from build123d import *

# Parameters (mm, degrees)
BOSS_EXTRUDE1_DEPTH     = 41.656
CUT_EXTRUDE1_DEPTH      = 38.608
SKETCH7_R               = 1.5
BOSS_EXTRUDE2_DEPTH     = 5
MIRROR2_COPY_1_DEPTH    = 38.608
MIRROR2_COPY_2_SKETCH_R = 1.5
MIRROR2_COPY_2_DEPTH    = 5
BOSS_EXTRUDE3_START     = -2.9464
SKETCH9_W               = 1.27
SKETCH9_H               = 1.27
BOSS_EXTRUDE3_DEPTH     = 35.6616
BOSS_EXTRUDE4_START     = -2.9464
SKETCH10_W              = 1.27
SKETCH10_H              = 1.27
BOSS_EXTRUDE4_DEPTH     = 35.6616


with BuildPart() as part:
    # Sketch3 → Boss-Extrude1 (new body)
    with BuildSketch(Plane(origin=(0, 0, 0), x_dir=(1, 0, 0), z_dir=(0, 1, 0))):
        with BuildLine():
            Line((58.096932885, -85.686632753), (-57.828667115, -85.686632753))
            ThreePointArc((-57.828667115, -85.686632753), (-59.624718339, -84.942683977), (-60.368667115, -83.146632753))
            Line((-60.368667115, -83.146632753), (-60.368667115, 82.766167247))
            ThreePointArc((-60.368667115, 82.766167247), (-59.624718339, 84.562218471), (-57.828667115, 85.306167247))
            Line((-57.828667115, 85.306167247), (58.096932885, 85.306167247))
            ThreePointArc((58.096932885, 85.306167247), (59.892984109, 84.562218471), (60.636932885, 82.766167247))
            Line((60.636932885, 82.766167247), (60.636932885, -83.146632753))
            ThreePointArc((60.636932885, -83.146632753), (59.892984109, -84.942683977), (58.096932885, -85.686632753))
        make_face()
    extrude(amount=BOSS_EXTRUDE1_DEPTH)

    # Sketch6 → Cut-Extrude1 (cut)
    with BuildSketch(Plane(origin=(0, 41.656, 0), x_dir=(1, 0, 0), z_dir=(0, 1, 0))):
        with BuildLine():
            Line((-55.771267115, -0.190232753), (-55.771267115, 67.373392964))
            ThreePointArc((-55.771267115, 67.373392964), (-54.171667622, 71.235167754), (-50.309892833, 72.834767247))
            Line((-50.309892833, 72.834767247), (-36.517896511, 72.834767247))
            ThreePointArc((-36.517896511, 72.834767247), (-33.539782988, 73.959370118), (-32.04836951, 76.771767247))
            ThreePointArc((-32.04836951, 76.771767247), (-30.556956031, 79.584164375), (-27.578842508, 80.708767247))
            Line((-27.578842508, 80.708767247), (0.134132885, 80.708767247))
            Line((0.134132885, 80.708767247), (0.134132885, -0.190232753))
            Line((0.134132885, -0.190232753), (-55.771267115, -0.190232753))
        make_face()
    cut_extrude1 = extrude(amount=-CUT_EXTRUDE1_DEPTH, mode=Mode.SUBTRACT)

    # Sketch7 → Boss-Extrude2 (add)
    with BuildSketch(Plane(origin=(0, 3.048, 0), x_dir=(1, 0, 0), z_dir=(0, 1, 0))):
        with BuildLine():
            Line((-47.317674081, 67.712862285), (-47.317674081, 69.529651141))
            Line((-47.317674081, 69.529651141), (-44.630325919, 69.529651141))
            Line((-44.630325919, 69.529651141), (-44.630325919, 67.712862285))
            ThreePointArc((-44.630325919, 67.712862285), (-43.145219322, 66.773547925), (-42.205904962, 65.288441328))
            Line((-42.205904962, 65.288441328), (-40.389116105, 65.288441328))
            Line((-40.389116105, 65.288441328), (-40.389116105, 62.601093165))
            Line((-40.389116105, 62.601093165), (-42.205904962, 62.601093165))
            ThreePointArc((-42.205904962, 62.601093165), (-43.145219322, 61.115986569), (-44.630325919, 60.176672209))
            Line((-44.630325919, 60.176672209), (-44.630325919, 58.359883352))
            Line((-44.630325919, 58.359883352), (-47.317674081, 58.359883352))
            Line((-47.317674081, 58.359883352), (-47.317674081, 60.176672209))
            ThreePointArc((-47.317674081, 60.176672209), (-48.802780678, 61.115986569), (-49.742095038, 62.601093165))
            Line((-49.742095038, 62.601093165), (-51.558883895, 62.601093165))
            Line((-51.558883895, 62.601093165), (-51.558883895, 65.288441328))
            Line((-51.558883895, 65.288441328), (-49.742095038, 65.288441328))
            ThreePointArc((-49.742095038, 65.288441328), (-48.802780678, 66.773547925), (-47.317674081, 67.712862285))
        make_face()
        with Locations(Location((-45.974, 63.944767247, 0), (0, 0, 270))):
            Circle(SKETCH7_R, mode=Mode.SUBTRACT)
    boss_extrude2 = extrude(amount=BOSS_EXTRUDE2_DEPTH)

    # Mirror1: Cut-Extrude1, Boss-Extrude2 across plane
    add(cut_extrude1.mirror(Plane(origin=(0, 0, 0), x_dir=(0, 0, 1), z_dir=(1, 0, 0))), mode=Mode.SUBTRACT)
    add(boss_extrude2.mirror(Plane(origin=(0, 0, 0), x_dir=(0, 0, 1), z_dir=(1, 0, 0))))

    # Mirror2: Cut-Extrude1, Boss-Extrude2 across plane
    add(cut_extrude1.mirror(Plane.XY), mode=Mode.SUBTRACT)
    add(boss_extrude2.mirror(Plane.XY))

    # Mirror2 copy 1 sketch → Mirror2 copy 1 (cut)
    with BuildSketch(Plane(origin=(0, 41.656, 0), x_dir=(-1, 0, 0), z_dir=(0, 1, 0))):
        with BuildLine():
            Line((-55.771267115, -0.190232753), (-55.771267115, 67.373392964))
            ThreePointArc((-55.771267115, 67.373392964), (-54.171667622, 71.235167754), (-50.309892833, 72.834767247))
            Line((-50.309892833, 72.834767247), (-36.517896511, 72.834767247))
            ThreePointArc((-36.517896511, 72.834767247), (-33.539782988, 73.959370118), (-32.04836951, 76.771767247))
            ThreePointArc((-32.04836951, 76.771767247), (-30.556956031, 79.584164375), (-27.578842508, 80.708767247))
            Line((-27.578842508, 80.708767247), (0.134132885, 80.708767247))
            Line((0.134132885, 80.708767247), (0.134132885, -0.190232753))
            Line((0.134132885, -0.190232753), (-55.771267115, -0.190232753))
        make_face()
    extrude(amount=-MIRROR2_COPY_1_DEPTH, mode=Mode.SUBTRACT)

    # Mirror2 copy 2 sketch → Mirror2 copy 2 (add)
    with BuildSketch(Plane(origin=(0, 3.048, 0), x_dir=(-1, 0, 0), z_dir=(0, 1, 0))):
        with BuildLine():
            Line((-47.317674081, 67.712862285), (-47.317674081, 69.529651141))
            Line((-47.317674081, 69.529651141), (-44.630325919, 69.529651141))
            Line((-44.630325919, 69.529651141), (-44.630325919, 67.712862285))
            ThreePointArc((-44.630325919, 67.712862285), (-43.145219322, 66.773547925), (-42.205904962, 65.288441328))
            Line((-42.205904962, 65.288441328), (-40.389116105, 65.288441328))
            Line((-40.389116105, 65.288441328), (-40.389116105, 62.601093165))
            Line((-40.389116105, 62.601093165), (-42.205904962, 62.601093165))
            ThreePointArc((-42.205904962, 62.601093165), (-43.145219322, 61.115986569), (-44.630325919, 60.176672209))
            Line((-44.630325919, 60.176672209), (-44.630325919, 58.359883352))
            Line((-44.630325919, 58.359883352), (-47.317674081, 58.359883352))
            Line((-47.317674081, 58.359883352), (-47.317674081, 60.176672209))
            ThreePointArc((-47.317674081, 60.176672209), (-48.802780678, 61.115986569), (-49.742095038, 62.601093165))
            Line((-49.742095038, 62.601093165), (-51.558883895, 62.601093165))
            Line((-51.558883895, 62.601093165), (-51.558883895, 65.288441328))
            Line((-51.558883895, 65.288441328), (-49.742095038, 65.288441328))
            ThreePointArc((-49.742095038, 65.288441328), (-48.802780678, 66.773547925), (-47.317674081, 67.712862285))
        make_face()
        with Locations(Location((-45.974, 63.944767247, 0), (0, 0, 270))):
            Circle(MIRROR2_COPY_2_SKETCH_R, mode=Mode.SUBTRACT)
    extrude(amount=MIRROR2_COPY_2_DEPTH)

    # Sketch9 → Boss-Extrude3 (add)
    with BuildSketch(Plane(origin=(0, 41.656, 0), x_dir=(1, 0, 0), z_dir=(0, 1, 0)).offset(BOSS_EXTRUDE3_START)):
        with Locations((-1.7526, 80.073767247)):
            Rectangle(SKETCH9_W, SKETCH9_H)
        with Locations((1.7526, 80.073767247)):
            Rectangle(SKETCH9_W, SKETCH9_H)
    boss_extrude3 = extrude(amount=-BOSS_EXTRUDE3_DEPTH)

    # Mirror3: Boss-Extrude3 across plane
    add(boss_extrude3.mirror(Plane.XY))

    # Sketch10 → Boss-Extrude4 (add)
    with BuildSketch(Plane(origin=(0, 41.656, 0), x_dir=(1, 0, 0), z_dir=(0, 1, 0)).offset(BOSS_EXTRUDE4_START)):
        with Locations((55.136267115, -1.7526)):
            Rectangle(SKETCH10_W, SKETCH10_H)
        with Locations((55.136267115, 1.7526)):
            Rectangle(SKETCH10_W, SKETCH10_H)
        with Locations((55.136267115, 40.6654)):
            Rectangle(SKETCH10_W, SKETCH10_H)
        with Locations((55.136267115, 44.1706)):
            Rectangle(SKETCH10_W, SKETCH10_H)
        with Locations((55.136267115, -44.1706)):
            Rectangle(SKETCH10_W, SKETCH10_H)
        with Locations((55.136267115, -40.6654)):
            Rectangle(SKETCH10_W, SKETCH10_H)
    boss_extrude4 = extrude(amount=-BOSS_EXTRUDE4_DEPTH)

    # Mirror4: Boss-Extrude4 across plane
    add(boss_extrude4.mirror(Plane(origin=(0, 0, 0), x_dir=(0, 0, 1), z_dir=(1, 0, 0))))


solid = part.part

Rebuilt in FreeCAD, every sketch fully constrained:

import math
import FreeCAD as App
import Part
import Sketcher

V = App.Vector
Q = App.Units.Quantity

doc = App.newDocument("Part")
body = doc.addObject("PartDesign::Body", "Body")

sketch1 = body.newObject("Sketcher::SketchObject", "Sketch")
sketch1.AttachmentSupport = (doc.getObject("XZ_Plane"), [""])
sketch1.MapMode = "FlatFace"
sketch1.addGeometry([
    Part.LineSegment(V(-57.8, 85.7, 0), V(58.1, 85.7, 0)),
    Part.ArcOfCircle(Part.Circle(V(58.1, 83.1, 0), V(0, 0, 1), 2.5), math.radians(0), math.radians(90)),
    Part.LineSegment(V(60.6, 83.1, 0), V(60.6, -82.8, 0)),
    Part.ArcOfCircle(Part.Circle(V(58.1, -82.8, 0), V(0, 0, 1), 2.5), math.radians(-90), math.radians(0)),
    Part.LineSegment(V(58.1, -85.3, 0), V(-57.8, -85.3, 0)),
    Part.ArcOfCircle(Part.Circle(V(-57.8, -82.8, 0), V(0, 0, 1), 2.5), math.radians(-180), math.radians(-90)),
    Part.LineSegment(V(-60.4, -82.8, 0), V(-60.4, 83.1, 0)),
    Part.ArcOfCircle(Part.Circle(V(-57.8, 83.1, 0), V(0, 0, 1), 2.5), math.radians(90), math.radians(180)),
], False)
sketch1.addConstraint([
    Sketcher.Constraint("Tangent", 0, 2, 1, 2),
    Sketcher.Constraint("Tangent", 1, 1, 2, 1),
    Sketcher.Constraint("Tangent", 2, 2, 3, 2),
    Sketcher.Constraint("Tangent", 3, 1, 4, 1),
    Sketcher.Constraint("Tangent", 4, 2, 5, 2),
    Sketcher.Constraint("Tangent", 5, 1, 6, 1),
    Sketcher.Constraint("Tangent", 6, 2, 7, 2),
    Sketcher.Constraint("Tangent", 7, 1, 0, 1),
    Sketcher.Constraint("Horizontal", 0),
    Sketcher.Constraint("Vertical", 2),
    Sketcher.Constraint("Horizontal", 4),
    Sketcher.Constraint("Vertical", 6),
    Sketcher.Constraint("Equal", 1, 3),
    Sketcher.Constraint("Equal", 3, 5),
    Sketcher.Constraint("Equal", 5, 7),
    Sketcher.Constraint("Radius", 1, Q("0.1 in")),
    Sketcher.Constraint("DistanceX", 0, 1, 0, 2, Q("4.564 in")),
    Sketcher.Constraint("DistanceY", 2, 2, 2, 1, Q("6.532 in")),
    Sketcher.Constraint("DistanceX", -1, 1, 1, 3, 58.096933),
    Sketcher.Constraint("DistanceY", -1, 1, 1, 3, 83.146633),
])
pad1 = body.newObject("PartDesign::Pad", "Pad")
pad1.Profile = sketch1
pad1.Length = Q("1.64 in")
pad1.Reversed = True

sketch2 = body.newObject("Sketcher::SketchObject", "Sketch001")
sketch2.AttachmentSupport = (doc.getObject("XZ_Plane"), [""])
sketch2.MapMode = "FlatFace"
sketch2.AttachmentOffset = App.Placement(V(0, 0, -1.64 * 25.4), App.Rotation())
sketch2.addGeometry([
    Part.LineSegment(V(-55.8, -67.4, 0), V(-55.8, 0.2, 0)),
    Part.LineSegment(V(-55.8, 0.2, 0), V(0.1, 0.2, 0)),
    Part.LineSegment(V(0.1, 0.2, 0), V(0.1, -80.7, 0)),
    Part.LineSegment(V(0.1, -80.7, 0), V(-27.6, -80.7, 0)),
    Part.ArcOfCircle(Part.Circle(V(-27.6, -76.2, 0), V(0, 0, 1), 4.5), math.radians(-173), math.radians(-90)),
    Part.ArcOfCircle(Part.Circle(V(-36.5, -77.3, 0), V(0, 0, 1), 4.5), math.radians(7), math.radians(90)),
    Part.LineSegment(V(-36.5, -72.8, 0), V(-50.3, -72.8, 0)),
    Part.ArcOfCircle(Part.Circle(V(-50.3, -67.4, 0), V(0, 0, 1), 5.5), math.radians(180), math.radians(270)),
], False)
sketch2.addConstraint([
    Sketcher.Constraint("Coincident", 0, 2, 1, 1),
    Sketcher.Constraint("Coincident", 1, 2, 2, 1),
    Sketcher.Constraint("Coincident", 2, 2, 3, 1),
    Sketcher.Constraint("Tangent", 3, 2, 4, 2),
    Sketcher.Constraint("Tangent", 4, 1, 5, 1),
    Sketcher.Constraint("Tangent", 5, 2, 6, 1),
    Sketcher.Constraint("Tangent", 6, 2, 7, 2),
    Sketcher.Constraint("Tangent", 7, 1, 0, 1),
    Sketcher.Constraint("Vertical", 0),
    Sketcher.Constraint("Horizontal", 1),
    Sketcher.Constraint("Vertical", 2),
    Sketcher.Constraint("Horizontal", 3),
    Sketcher.Constraint("Horizontal", 6),
    Sketcher.Constraint("Equal", 4, 5),
    Sketcher.Constraint("DistanceX", 1, 1, 1, 2, Q("2.201 in")),
    Sketcher.Constraint("DistanceY", 2, 2, 2, 1, Q("3.185 in")),
    Sketcher.Constraint("DistanceY", 3, 2, 5, 2, Q("0.31 in")),
    Sketcher.Constraint("Radius", 4, 4.505542),
    Sketcher.Constraint("Radius", 7, 5.461374),
    Sketcher.Constraint("DistanceX", 3, 2, 3, 1, 27.712975),
    Sketcher.Constraint("DistanceY", 5, 3, -1, 1, 77.34031),
    Sketcher.Constraint("DistanceX", 4, 1, -1, 1, 32.04837),
])
pocket1 = body.newObject("PartDesign::Pocket", "Pocket")
pocket1.Profile = sketch2
pocket1.Length = Q("1.52 in")
pocket1.Reversed = True

sketch3 = body.newObject("Sketcher::SketchObject", "Sketch002")
sketch3.AttachmentSupport = (doc.getObject("XZ_Plane"), [""])
sketch3.MapMode = "FlatFace"
sketch3.AttachmentOffset = App.Placement(V(0, 0, -0.12 * 25.4), App.Rotation())
sketch3.addGeometry([
    Part.LineSegment(V(-47.3, -69.5, 0), V(-47.3, -67.7, 0)),
    Part.ArcOfCircle(Part.Circle(V(-46, -63.9, 0), V(0, 0, 1), 4), math.radians(-160), math.radians(-110)),
    Part.LineSegment(V(-49.7, -65.3, 0), V(-51.6, -65.3, 0)),
    Part.LineSegment(V(-51.6, -65.3, 0), V(-51.6, -62.6, 0)),
    Part.LineSegment(V(-51.6, -62.6, 0), V(-49.7, -62.6, 0)),
    Part.ArcOfCircle(Part.Circle(V(-46, -63.9, 0), V(0, 0, 1), 4), math.radians(110), math.radians(160)),
    Part.LineSegment(V(-47.3, -60.2, 0), V(-47.3, -58.4, 0)),
    Part.LineSegment(V(-47.3, -58.4, 0), V(-44.6, -58.4, 0)),
    Part.LineSegment(V(-44.6, -58.4, 0), V(-44.6, -60.2, 0)),
    Part.ArcOfCircle(Part.Circle(V(-46, -63.9, 0), V(0, 0, 1), 4), math.radians(20), math.radians(70)),
    Part.LineSegment(V(-42.2, -62.6, 0), V(-40.4, -62.6, 0)),
    Part.LineSegment(V(-40.4, -62.6, 0), V(-40.4, -65.3, 0)),
    Part.LineSegment(V(-40.4, -65.3, 0), V(-42.2, -65.3, 0)),
    Part.ArcOfCircle(Part.Circle(V(-46, -63.9, 0), V(0, 0, 1), 4), math.radians(-70), math.radians(-20)),
    Part.LineSegment(V(-44.6, -67.7, 0), V(-44.6, -69.5, 0)),
    Part.LineSegment(V(-44.6, -69.5, 0), V(-47.3, -69.5, 0)),
    Part.Circle(V(-46, -63.9, 0), V(0, 0, 1), 1.5),
], False)
sketch3.addConstraint([
    Sketcher.Constraint("Coincident", 0, 2, 1, 2),
    Sketcher.Constraint("Coincident", 1, 1, 2, 1),
    Sketcher.Constraint("Coincident", 2, 2, 3, 1),
    Sketcher.Constraint("Coincident", 3, 2, 4, 1),
    Sketcher.Constraint("Coincident", 4, 2, 5, 2),
    Sketcher.Constraint("Coincident", 5, 1, 6, 1),
    Sketcher.Constraint("Coincident", 6, 2, 7, 1),
    Sketcher.Constraint("Coincident", 7, 2, 8, 1),
    Sketcher.Constraint("Coincident", 8, 2, 9, 2),
    Sketcher.Constraint("Coincident", 9, 1, 10, 1),
    Sketcher.Constraint("Coincident", 10, 2, 11, 1),
    Sketcher.Constraint("Coincident", 11, 2, 12, 1),
    Sketcher.Constraint("Coincident", 12, 2, 13, 2),
    Sketcher.Constraint("Coincident", 13, 1, 14, 1),
    Sketcher.Constraint("Coincident", 14, 2, 15, 1),
    Sketcher.Constraint("Coincident", 15, 2, 0, 1),
    Sketcher.Constraint("Vertical", 0),
    Sketcher.Constraint("Horizontal", 2),
    Sketcher.Constraint("Vertical", 3),
    Sketcher.Constraint("Horizontal", 4),
    Sketcher.Constraint("Vertical", 6),
    Sketcher.Constraint("Horizontal", 7),
    Sketcher.Constraint("Vertical", 8),
    Sketcher.Constraint("Horizontal", 10),
    Sketcher.Constraint("Vertical", 11),
    Sketcher.Constraint("Horizontal", 12),
    Sketcher.Constraint("Vertical", 14),
    Sketcher.Constraint("Horizontal", 15),
    Sketcher.Constraint("Coincident", 5, 3, 1, 3),
    Sketcher.Constraint("Coincident", 9, 3, 1, 3),
    Sketcher.Constraint("Coincident", 13, 3, 1, 3),
    Sketcher.Constraint("Coincident", 16, 3, 1, 3),
    Sketcher.Constraint("Equal", 1, 5),
    Sketcher.Constraint("Equal", 5, 9),
    Sketcher.Constraint("Equal", 9, 13),
    Sketcher.Constraint("Horizontal", 5, 1, 8, 2),
    Sketcher.Constraint("Horizontal", 4, 2, 9, 1),
    Sketcher.Constraint("Horizontal", 2, 2, 11, 2),
    Sketcher.Constraint("Horizontal", 0, 2, 13, 1),
    Sketcher.Constraint("Vertical", 1, 1, 4, 2),
    Sketcher.Constraint("Vertical", 0, 2, 5, 1),
    Sketcher.Constraint("Equal", 4, 10),
    Sketcher.Constraint("Equal", 12, 0),
    Sketcher.Constraint("Equal", 15, 3),
    Sketcher.Constraint("Equal", 0, 6),
    Sketcher.Constraint("Radius", 1, Q("0.1575 in")),
    Sketcher.Constraint("Diameter", 16, 3.0),
    Sketcher.Constraint("DistanceX", 1, 3, -1, 1, Q("1.81 in")),
    Sketcher.Constraint("DistanceX", 2, 2, 2, 1, 1.816789),
    Sketcher.Constraint("DistanceX", 7, 1, 7, 2, 2.687348),
    Sketcher.Constraint("DistanceY", 1, 1, -1, 1, 65.288441),
])
pad2 = body.newObject("PartDesign::Pad", "Pad001")
pad2.Profile = sketch3
pad2.Length = 5
pad2.Reversed = True
doc.recompute()

mirrored = body.newObject("PartDesign::Mirrored", "Mirrored")
mirrored.Originals = [pocket1, pad2]
mirrored.MirrorPlane = (doc.getObject("YZ_Plane"), [""])
body.Tip = mirrored
doc.recompute()

mirrored2 = body.newObject("PartDesign::Mirrored", "Mirrored001")
mirrored2.Originals = [pocket1, pad2]
mirrored2.MirrorPlane = (doc.getObject("XY_Plane"), [""])
body.Tip = mirrored2

sketch4 = body.newObject("Sketcher::SketchObject", "Sketch003")
sketch4.AttachmentSupport = (doc.getObject("XZ_Plane"), [""])
sketch4.MapMode = "FlatFace"
sketch4.AttachmentOffset = App.Placement(V(0, 0, -1.64 * 25.4), App.Rotation())
sketch4.addGeometry([
    Part.LineSegment(V(55.8, 67.4, 0), V(55.8, -0.2, 0)),
    Part.LineSegment(V(55.8, -0.2, 0), V(-0.1, -0.2, 0)),
    Part.LineSegment(V(-0.1, -0.2, 0), V(-0.1, 80.7, 0)),
    Part.LineSegment(V(-0.1, 80.7, 0), V(27.6, 80.7, 0)),
    Part.ArcOfCircle(Part.Circle(V(27.6, 76.2, 0), V(0, 0, 1), 4.5), math.radians(7), math.radians(90)),
    Part.ArcOfCircle(Part.Circle(V(36.5, 77.3, 0), V(0, 0, 1), 4.5), math.radians(-173), math.radians(-90)),
    Part.LineSegment(V(36.5, 72.8, 0), V(50.3, 72.8, 0)),
    Part.ArcOfCircle(Part.Circle(V(50.3, 67.4, 0), V(0, 0, 1), 5.5), math.radians(0), math.radians(90)),
], False)
sketch4.addConstraint([
    Sketcher.Constraint("Coincident", 0, 2, 1, 1),
    Sketcher.Constraint("Coincident", 1, 2, 2, 1),
    Sketcher.Constraint("Coincident", 2, 2, 3, 1),
    Sketcher.Constraint("Tangent", 3, 2, 4, 2),
    Sketcher.Constraint("Tangent", 4, 1, 5, 1),
    Sketcher.Constraint("Tangent", 5, 2, 6, 1),
    Sketcher.Constraint("Tangent", 6, 2, 7, 2),
    Sketcher.Constraint("Tangent", 7, 1, 0, 1),
    Sketcher.Constraint("Vertical", 0),
    Sketcher.Constraint("Horizontal", 1),
    Sketcher.Constraint("Vertical", 2),
    Sketcher.Constraint("Horizontal", 3),
    Sketcher.Constraint("Horizontal", 6),
    Sketcher.Constraint("Equal", 4, 5),
    Sketcher.Constraint("DistanceX", 1, 2, 1, 1, Q("2.201 in")),
    Sketcher.Constraint("DistanceY", 2, 1, 2, 2, Q("3.185 in")),
    Sketcher.Constraint("DistanceY", 5, 2, 3, 2, Q("0.31 in")),
    Sketcher.Constraint("Radius", 4, 4.505542),
    Sketcher.Constraint("Radius", 7, 5.461374),
    Sketcher.Constraint("DistanceX", 3, 1, 3, 2, 27.712975),
    Sketcher.Constraint("DistanceY", -1, 1, 5, 3, 77.34031),
    Sketcher.Constraint("DistanceX", -1, 1, 4, 1, 32.04837),
])
pocket2 = body.newObject("PartDesign::Pocket", "Pocket001")
pocket2.Profile = sketch4
pocket2.Length = Q("1.52 in")
pocket2.Reversed = True

sketch5 = body.newObject("Sketcher::SketchObject", "Sketch004")
sketch5.AttachmentSupport = (doc.getObject("XZ_Plane"), [""])
sketch5.MapMode = "FlatFace"
sketch5.AttachmentOffset = App.Placement(V(0, 0, -0.12 * 25.4), App.Rotation())
sketch5.addGeometry([
    Part.LineSegment(V(47.3, 69.5, 0), V(47.3, 67.7, 0)),
    Part.ArcOfCircle(Part.Circle(V(46, 63.9, 0), V(0, 0, 1), 4), math.radians(20), math.radians(70)),
    Part.LineSegment(V(49.7, 65.3, 0), V(51.6, 65.3, 0)),
    Part.LineSegment(V(51.6, 65.3, 0), V(51.6, 62.6, 0)),
    Part.LineSegment(V(51.6, 62.6, 0), V(49.7, 62.6, 0)),
    Part.ArcOfCircle(Part.Circle(V(46, 63.9, 0), V(0, 0, 1), 4), math.radians(-70), math.radians(-20)),
    Part.LineSegment(V(47.3, 60.2, 0), V(47.3, 58.4, 0)),
    Part.LineSegment(V(47.3, 58.4, 0), V(44.6, 58.4, 0)),
    Part.LineSegment(V(44.6, 58.4, 0), V(44.6, 60.2, 0)),
    Part.ArcOfCircle(Part.Circle(V(46, 63.9, 0), V(0, 0, 1), 4), math.radians(-160), math.radians(-110)),
    Part.LineSegment(V(42.2, 62.6, 0), V(40.4, 62.6, 0)),
    Part.LineSegment(V(40.4, 62.6, 0), V(40.4, 65.3, 0)),
    Part.LineSegment(V(40.4, 65.3, 0), V(42.2, 65.3, 0)),
    Part.ArcOfCircle(Part.Circle(V(46, 63.9, 0), V(0, 0, 1), 4), math.radians(110), math.radians(160)),
    Part.LineSegment(V(44.6, 67.7, 0), V(44.6, 69.5, 0)),
    Part.LineSegment(V(44.6, 69.5, 0), V(47.3, 69.5, 0)),
    Part.Circle(V(46, 63.9, 0), V(0, 0, 1), 1.5),
], False)
sketch5.addConstraint([
    Sketcher.Constraint("Coincident", 0, 2, 1, 2),
    Sketcher.Constraint("Coincident", 1, 1, 2, 1),
    Sketcher.Constraint("Coincident", 2, 2, 3, 1),
    Sketcher.Constraint("Coincident", 3, 2, 4, 1),
    Sketcher.Constraint("Coincident", 4, 2, 5, 2),
    Sketcher.Constraint("Coincident", 5, 1, 6, 1),
    Sketcher.Constraint("Coincident", 6, 2, 7, 1),
    Sketcher.Constraint("Coincident", 7, 2, 8, 1),
    Sketcher.Constraint("Coincident", 8, 2, 9, 2),
    Sketcher.Constraint("Coincident", 9, 1, 10, 1),
    Sketcher.Constraint("Coincident", 10, 2, 11, 1),
    Sketcher.Constraint("Coincident", 11, 2, 12, 1),
    Sketcher.Constraint("Coincident", 12, 2, 13, 2),
    Sketcher.Constraint("Coincident", 13, 1, 14, 1),
    Sketcher.Constraint("Coincident", 14, 2, 15, 1),
    Sketcher.Constraint("Coincident", 15, 2, 0, 1),
    Sketcher.Constraint("Vertical", 0),
    Sketcher.Constraint("Horizontal", 2),
    Sketcher.Constraint("Vertical", 3),
    Sketcher.Constraint("Horizontal", 4),
    Sketcher.Constraint("Vertical", 6),
    Sketcher.Constraint("Horizontal", 7),
    Sketcher.Constraint("Vertical", 8),
    Sketcher.Constraint("Horizontal", 10),
    Sketcher.Constraint("Vertical", 11),
    Sketcher.Constraint("Horizontal", 12),
    Sketcher.Constraint("Vertical", 14),
    Sketcher.Constraint("Horizontal", 15),
    Sketcher.Constraint("Coincident", 5, 3, 1, 3),
    Sketcher.Constraint("Coincident", 9, 3, 1, 3),
    Sketcher.Constraint("Coincident", 13, 3, 1, 3),
    Sketcher.Constraint("Coincident", 16, 3, 1, 3),
    Sketcher.Constraint("Equal", 1, 5),
    Sketcher.Constraint("Equal", 5, 9),
    Sketcher.Constraint("Equal", 9, 13),
    Sketcher.Constraint("Horizontal", 5, 1, 8, 2),
    Sketcher.Constraint("Horizontal", 4, 2, 9, 1),
    Sketcher.Constraint("Horizontal", 2, 2, 11, 2),
    Sketcher.Constraint("Horizontal", 0, 2, 13, 1),
    Sketcher.Constraint("Vertical", 1, 1, 4, 2),
    Sketcher.Constraint("Vertical", 0, 2, 5, 1),
    Sketcher.Constraint("Equal", 4, 10),
    Sketcher.Constraint("Equal", 12, 0),
    Sketcher.Constraint("Equal", 15, 3),
    Sketcher.Constraint("Equal", 0, 6),
    Sketcher.Constraint("Radius", 1, Q("0.1575 in")),
    Sketcher.Constraint("Diameter", 16, 3.0),
    Sketcher.Constraint("DistanceX", -1, 1, 1, 3, Q("1.81 in")),
    Sketcher.Constraint("DistanceX", 2, 1, 2, 2, 1.816789),
    Sketcher.Constraint("DistanceX", 7, 2, 7, 1, 2.687348),
    Sketcher.Constraint("DistanceY", -1, 1, 1, 1, 65.288441),
])
pad3 = body.newObject("PartDesign::Pad", "Pad002")
pad3.Profile = sketch5
pad3.Length = 5
pad3.Reversed = True

sketch6 = body.newObject("Sketcher::SketchObject", "Sketch005")
sketch6.AttachmentSupport = (doc.getObject("XZ_Plane"), [""])
sketch6.MapMode = "FlatFace"
sketch6.AttachmentOffset = App.Placement(V(0, 0, -1.524 * 25.4), App.Rotation())
sketch6.addGeometry([
    Part.LineSegment(V(-2.4, -80.7, 0), V(-2.4, -79.4, 0)),
    Part.LineSegment(V(-2.4, -79.4, 0), V(-1.1, -79.4, 0)),
    Part.LineSegment(V(-1.1, -79.4, 0), V(-1.1, -80.7, 0)),
    Part.LineSegment(V(-1.1, -80.7, 0), V(-2.4, -80.7, 0)),
    Part.LineSegment(V(1.1, -80.7, 0), V(1.1, -79.4, 0)),
    Part.LineSegment(V(1.1, -79.4, 0), V(2.4, -79.4, 0)),
    Part.LineSegment(V(2.4, -79.4, 0), V(2.4, -80.7, 0)),
    Part.LineSegment(V(2.4, -80.7, 0), V(1.1, -80.7, 0)),
], False)
sketch6.addConstraint([
    Sketcher.Constraint("Coincident", 0, 2, 1, 1),
    Sketcher.Constraint("Coincident", 1, 2, 2, 1),
    Sketcher.Constraint("Coincident", 2, 2, 3, 1),
    Sketcher.Constraint("Coincident", 3, 2, 0, 1),
    Sketcher.Constraint("Coincident", 4, 2, 5, 1),
    Sketcher.Constraint("Coincident", 5, 2, 6, 1),
    Sketcher.Constraint("Coincident", 6, 2, 7, 1),
    Sketcher.Constraint("Coincident", 7, 2, 4, 1),
    Sketcher.Constraint("Vertical", 0),
    Sketcher.Constraint("Horizontal", 1),
    Sketcher.Constraint("Vertical", 2),
    Sketcher.Constraint("Horizontal", 3),
    Sketcher.Constraint("Vertical", 4),
    Sketcher.Constraint("Horizontal", 5),
    Sketcher.Constraint("Vertical", 6),
    Sketcher.Constraint("Horizontal", 7),
    Sketcher.Constraint("Symmetric", 1, 2, 4, 2, -2),
    Sketcher.Constraint("Symmetric", 3, 2, 6, 2, -2),
    Sketcher.Constraint("Equal", 7, 0),
    Sketcher.Constraint("DistanceX", 1, 1, 1, 2, Q("0.05 in")),
    Sketcher.Constraint("DistanceX", 0, 2, -1, 1, Q("0.094 in")),
    Sketcher.Constraint("DistanceY", 0, 2, -1, 1, 79.438767),
])
pad4 = body.newObject("PartDesign::Pad", "Pad003")
pad4.Profile = sketch6
pad4.Length = Q("1.404 in")
doc.recompute()

mirrored3 = body.newObject("PartDesign::Mirrored", "Mirrored002")
mirrored3.Originals = [pad4]
mirrored3.MirrorPlane = (doc.getObject("XY_Plane"), [""])
body.Tip = mirrored3

sketch7 = body.newObject("Sketcher::SketchObject", "Sketch006")
sketch7.AttachmentSupport = (doc.getObject("XZ_Plane"), [""])
sketch7.MapMode = "FlatFace"
sketch7.AttachmentOffset = App.Placement(V(0, 0, -1.524 * 25.4), App.Rotation())
sketch7.addGeometry([
    Part.LineSegment(V(54.5, 1.1, 0), V(54.5, 2.4, 0)),
    Part.LineSegment(V(54.5, 2.4, 0), V(55.8, 2.4, 0)),
    Part.LineSegment(V(55.8, 2.4, 0), V(55.8, 1.1, 0)),
    Part.LineSegment(V(55.8, 1.1, 0), V(54.5, 1.1, 0)),
    Part.LineSegment(V(54.5, -2.4, 0), V(54.5, -1.1, 0)),
    Part.LineSegment(V(54.5, -1.1, 0), V(55.8, -1.1, 0)),
    Part.LineSegment(V(55.8, -1.1, 0), V(55.8, -2.4, 0)),
    Part.LineSegment(V(55.8, -2.4, 0), V(54.5, -2.4, 0)),
    Part.LineSegment(V(54.5, -41.3, 0), V(54.5, -40, 0)),
    Part.LineSegment(V(54.5, -40, 0), V(55.8, -40, 0)),
    Part.LineSegment(V(55.8, -40, 0), V(55.8, -41.3, 0)),
    Part.LineSegment(V(55.8, -41.3, 0), V(54.5, -41.3, 0)),
    Part.LineSegment(V(54.5, -44.8, 0), V(54.5, -43.5, 0)),
    Part.LineSegment(V(54.5, -43.5, 0), V(55.8, -43.5, 0)),
    Part.LineSegment(V(55.8, -43.5, 0), V(55.8, -44.8, 0)),
    Part.LineSegment(V(55.8, -44.8, 0), V(54.5, -44.8, 0)),
    Part.LineSegment(V(54.5, 43.5, 0), V(54.5, 44.8, 0)),
    Part.LineSegment(V(54.5, 44.8, 0), V(55.8, 44.8, 0)),
    Part.LineSegment(V(55.8, 44.8, 0), V(55.8, 43.5, 0)),
    Part.LineSegment(V(55.8, 43.5, 0), V(54.5, 43.5, 0)),
    Part.LineSegment(V(54.5, 40, 0), V(54.5, 41.3, 0)),
    Part.LineSegment(V(54.5, 41.3, 0), V(55.8, 41.3, 0)),
    Part.LineSegment(V(55.8, 41.3, 0), V(55.8, 40, 0)),
    Part.LineSegment(V(55.8, 40, 0), V(54.5, 40, 0)),
], False)
sketch7.addConstraint([
    Sketcher.Constraint("Coincident", 0, 2, 1, 1),
    Sketcher.Constraint("Coincident", 1, 2, 2, 1),
    Sketcher.Constraint("Coincident", 2, 2, 3, 1),
    Sketcher.Constraint("Coincident", 3, 2, 0, 1),
    Sketcher.Constraint("Coincident", 4, 2, 5, 1),
    Sketcher.Constraint("Coincident", 5, 2, 6, 1),
    Sketcher.Constraint("Coincident", 6, 2, 7, 1),
    Sketcher.Constraint("Coincident", 7, 2, 4, 1),
    Sketcher.Constraint("Coincident", 8, 2, 9, 1),
    Sketcher.Constraint("Coincident", 9, 2, 10, 1),
    Sketcher.Constraint("Coincident", 10, 2, 11, 1),
    Sketcher.Constraint("Coincident", 11, 2, 8, 1),
    Sketcher.Constraint("Coincident", 12, 2, 13, 1),
    Sketcher.Constraint("Coincident", 13, 2, 14, 1),
    Sketcher.Constraint("Coincident", 14, 2, 15, 1),
    Sketcher.Constraint("Coincident", 15, 2, 12, 1),
    Sketcher.Constraint("Coincident", 16, 2, 17, 1),
    Sketcher.Constraint("Coincident", 17, 2, 18, 1),
    Sketcher.Constraint("Coincident", 18, 2, 19, 1),
    Sketcher.Constraint("Coincident", 19, 2, 16, 1),
    Sketcher.Constraint("Coincident", 20, 2, 21, 1),
    Sketcher.Constraint("Coincident", 21, 2, 22, 1),
    Sketcher.Constraint("Coincident", 22, 2, 23, 1),
    Sketcher.Constraint("Coincident", 23, 2, 20, 1),
    Sketcher.Constraint("Vertical", 0),
    Sketcher.Constraint("Horizontal", 1),
    Sketcher.Constraint("Vertical", 2),
    Sketcher.Constraint("Horizontal", 3),
    Sketcher.Constraint("Vertical", 4),
    Sketcher.Constraint("Horizontal", 5),
    Sketcher.Constraint("Vertical", 6),
    Sketcher.Constraint("Horizontal", 7),
    Sketcher.Constraint("Vertical", 8),
    Sketcher.Constraint("Horizontal", 9),
    Sketcher.Constraint("Vertical", 10),
    Sketcher.Constraint("Horizontal", 11),
    Sketcher.Constraint("Vertical", 12),
    Sketcher.Constraint("Horizontal", 13),
    Sketcher.Constraint("Vertical", 14),
    Sketcher.Constraint("Horizontal", 15),
    Sketcher.Constraint("Vertical", 16),
    Sketcher.Constraint("Horizontal", 17),
    Sketcher.Constraint("Vertical", 18),
    Sketcher.Constraint("Horizontal", 19),
    Sketcher.Constraint("Vertical", 20),
    Sketcher.Constraint("Horizontal", 21),
    Sketcher.Constraint("Vertical", 22),
    Sketcher.Constraint("Horizontal", 23),
    Sketcher.Constraint("Symmetric", 3, 2, 4, 2, -1),
    Sketcher.Constraint("Symmetric", 1, 2, 6, 2, -1),
    Sketcher.Constraint("Symmetric", 15, 2, 16, 2, -1),
    Sketcher.Constraint("Symmetric", 13, 2, 18, 2, -1),
    Sketcher.Constraint("Symmetric", 11, 2, 20, 2, -1),
    Sketcher.Constraint("Symmetric", 9, 2, 22, 2, -1),
    Sketcher.Constraint("Vertical", 7, 2, 8, 2),
    Sketcher.Constraint("Vertical", 6, 2, 9, 2),
    Sketcher.Constraint("Vertical", 11, 2, 12, 2),
    Sketcher.Constraint("Vertical", 10, 2, 13, 2),
    Sketcher.Constraint("Equal", 23, 0),
    Sketcher.Constraint("Equal", 6, 8),
    Sketcher.Constraint("Equal", 10, 12),
    Sketcher.Constraint("DistanceX", 1, 1, 1, 2, Q("0.05 in")),
    Sketcher.Constraint("DistanceY", 8, 2, 3, 2, Q("1.62 in")),
    Sketcher.Constraint("DistanceY", 12, 2, 7, 2, Q("1.62 in")),
    Sketcher.Constraint("DistanceY", -1, 1, 0, 2, Q("0.094 in")),
    Sketcher.Constraint("DistanceX", -1, 1, 0, 2, 54.501267),
])
pad5 = body.newObject("PartDesign::Pad", "Pad004")
pad5.Profile = sketch7
pad5.Length = Q("1.404 in")
doc.recompute()

mirrored4 = body.newObject("PartDesign::Mirrored", "Mirrored003")
mirrored4.Originals = [pad5]
mirrored4.MirrorPlane = (doc.getObject("YZ_Plane"), [""])
body.Tip = mirrored4

doc.recompute()
